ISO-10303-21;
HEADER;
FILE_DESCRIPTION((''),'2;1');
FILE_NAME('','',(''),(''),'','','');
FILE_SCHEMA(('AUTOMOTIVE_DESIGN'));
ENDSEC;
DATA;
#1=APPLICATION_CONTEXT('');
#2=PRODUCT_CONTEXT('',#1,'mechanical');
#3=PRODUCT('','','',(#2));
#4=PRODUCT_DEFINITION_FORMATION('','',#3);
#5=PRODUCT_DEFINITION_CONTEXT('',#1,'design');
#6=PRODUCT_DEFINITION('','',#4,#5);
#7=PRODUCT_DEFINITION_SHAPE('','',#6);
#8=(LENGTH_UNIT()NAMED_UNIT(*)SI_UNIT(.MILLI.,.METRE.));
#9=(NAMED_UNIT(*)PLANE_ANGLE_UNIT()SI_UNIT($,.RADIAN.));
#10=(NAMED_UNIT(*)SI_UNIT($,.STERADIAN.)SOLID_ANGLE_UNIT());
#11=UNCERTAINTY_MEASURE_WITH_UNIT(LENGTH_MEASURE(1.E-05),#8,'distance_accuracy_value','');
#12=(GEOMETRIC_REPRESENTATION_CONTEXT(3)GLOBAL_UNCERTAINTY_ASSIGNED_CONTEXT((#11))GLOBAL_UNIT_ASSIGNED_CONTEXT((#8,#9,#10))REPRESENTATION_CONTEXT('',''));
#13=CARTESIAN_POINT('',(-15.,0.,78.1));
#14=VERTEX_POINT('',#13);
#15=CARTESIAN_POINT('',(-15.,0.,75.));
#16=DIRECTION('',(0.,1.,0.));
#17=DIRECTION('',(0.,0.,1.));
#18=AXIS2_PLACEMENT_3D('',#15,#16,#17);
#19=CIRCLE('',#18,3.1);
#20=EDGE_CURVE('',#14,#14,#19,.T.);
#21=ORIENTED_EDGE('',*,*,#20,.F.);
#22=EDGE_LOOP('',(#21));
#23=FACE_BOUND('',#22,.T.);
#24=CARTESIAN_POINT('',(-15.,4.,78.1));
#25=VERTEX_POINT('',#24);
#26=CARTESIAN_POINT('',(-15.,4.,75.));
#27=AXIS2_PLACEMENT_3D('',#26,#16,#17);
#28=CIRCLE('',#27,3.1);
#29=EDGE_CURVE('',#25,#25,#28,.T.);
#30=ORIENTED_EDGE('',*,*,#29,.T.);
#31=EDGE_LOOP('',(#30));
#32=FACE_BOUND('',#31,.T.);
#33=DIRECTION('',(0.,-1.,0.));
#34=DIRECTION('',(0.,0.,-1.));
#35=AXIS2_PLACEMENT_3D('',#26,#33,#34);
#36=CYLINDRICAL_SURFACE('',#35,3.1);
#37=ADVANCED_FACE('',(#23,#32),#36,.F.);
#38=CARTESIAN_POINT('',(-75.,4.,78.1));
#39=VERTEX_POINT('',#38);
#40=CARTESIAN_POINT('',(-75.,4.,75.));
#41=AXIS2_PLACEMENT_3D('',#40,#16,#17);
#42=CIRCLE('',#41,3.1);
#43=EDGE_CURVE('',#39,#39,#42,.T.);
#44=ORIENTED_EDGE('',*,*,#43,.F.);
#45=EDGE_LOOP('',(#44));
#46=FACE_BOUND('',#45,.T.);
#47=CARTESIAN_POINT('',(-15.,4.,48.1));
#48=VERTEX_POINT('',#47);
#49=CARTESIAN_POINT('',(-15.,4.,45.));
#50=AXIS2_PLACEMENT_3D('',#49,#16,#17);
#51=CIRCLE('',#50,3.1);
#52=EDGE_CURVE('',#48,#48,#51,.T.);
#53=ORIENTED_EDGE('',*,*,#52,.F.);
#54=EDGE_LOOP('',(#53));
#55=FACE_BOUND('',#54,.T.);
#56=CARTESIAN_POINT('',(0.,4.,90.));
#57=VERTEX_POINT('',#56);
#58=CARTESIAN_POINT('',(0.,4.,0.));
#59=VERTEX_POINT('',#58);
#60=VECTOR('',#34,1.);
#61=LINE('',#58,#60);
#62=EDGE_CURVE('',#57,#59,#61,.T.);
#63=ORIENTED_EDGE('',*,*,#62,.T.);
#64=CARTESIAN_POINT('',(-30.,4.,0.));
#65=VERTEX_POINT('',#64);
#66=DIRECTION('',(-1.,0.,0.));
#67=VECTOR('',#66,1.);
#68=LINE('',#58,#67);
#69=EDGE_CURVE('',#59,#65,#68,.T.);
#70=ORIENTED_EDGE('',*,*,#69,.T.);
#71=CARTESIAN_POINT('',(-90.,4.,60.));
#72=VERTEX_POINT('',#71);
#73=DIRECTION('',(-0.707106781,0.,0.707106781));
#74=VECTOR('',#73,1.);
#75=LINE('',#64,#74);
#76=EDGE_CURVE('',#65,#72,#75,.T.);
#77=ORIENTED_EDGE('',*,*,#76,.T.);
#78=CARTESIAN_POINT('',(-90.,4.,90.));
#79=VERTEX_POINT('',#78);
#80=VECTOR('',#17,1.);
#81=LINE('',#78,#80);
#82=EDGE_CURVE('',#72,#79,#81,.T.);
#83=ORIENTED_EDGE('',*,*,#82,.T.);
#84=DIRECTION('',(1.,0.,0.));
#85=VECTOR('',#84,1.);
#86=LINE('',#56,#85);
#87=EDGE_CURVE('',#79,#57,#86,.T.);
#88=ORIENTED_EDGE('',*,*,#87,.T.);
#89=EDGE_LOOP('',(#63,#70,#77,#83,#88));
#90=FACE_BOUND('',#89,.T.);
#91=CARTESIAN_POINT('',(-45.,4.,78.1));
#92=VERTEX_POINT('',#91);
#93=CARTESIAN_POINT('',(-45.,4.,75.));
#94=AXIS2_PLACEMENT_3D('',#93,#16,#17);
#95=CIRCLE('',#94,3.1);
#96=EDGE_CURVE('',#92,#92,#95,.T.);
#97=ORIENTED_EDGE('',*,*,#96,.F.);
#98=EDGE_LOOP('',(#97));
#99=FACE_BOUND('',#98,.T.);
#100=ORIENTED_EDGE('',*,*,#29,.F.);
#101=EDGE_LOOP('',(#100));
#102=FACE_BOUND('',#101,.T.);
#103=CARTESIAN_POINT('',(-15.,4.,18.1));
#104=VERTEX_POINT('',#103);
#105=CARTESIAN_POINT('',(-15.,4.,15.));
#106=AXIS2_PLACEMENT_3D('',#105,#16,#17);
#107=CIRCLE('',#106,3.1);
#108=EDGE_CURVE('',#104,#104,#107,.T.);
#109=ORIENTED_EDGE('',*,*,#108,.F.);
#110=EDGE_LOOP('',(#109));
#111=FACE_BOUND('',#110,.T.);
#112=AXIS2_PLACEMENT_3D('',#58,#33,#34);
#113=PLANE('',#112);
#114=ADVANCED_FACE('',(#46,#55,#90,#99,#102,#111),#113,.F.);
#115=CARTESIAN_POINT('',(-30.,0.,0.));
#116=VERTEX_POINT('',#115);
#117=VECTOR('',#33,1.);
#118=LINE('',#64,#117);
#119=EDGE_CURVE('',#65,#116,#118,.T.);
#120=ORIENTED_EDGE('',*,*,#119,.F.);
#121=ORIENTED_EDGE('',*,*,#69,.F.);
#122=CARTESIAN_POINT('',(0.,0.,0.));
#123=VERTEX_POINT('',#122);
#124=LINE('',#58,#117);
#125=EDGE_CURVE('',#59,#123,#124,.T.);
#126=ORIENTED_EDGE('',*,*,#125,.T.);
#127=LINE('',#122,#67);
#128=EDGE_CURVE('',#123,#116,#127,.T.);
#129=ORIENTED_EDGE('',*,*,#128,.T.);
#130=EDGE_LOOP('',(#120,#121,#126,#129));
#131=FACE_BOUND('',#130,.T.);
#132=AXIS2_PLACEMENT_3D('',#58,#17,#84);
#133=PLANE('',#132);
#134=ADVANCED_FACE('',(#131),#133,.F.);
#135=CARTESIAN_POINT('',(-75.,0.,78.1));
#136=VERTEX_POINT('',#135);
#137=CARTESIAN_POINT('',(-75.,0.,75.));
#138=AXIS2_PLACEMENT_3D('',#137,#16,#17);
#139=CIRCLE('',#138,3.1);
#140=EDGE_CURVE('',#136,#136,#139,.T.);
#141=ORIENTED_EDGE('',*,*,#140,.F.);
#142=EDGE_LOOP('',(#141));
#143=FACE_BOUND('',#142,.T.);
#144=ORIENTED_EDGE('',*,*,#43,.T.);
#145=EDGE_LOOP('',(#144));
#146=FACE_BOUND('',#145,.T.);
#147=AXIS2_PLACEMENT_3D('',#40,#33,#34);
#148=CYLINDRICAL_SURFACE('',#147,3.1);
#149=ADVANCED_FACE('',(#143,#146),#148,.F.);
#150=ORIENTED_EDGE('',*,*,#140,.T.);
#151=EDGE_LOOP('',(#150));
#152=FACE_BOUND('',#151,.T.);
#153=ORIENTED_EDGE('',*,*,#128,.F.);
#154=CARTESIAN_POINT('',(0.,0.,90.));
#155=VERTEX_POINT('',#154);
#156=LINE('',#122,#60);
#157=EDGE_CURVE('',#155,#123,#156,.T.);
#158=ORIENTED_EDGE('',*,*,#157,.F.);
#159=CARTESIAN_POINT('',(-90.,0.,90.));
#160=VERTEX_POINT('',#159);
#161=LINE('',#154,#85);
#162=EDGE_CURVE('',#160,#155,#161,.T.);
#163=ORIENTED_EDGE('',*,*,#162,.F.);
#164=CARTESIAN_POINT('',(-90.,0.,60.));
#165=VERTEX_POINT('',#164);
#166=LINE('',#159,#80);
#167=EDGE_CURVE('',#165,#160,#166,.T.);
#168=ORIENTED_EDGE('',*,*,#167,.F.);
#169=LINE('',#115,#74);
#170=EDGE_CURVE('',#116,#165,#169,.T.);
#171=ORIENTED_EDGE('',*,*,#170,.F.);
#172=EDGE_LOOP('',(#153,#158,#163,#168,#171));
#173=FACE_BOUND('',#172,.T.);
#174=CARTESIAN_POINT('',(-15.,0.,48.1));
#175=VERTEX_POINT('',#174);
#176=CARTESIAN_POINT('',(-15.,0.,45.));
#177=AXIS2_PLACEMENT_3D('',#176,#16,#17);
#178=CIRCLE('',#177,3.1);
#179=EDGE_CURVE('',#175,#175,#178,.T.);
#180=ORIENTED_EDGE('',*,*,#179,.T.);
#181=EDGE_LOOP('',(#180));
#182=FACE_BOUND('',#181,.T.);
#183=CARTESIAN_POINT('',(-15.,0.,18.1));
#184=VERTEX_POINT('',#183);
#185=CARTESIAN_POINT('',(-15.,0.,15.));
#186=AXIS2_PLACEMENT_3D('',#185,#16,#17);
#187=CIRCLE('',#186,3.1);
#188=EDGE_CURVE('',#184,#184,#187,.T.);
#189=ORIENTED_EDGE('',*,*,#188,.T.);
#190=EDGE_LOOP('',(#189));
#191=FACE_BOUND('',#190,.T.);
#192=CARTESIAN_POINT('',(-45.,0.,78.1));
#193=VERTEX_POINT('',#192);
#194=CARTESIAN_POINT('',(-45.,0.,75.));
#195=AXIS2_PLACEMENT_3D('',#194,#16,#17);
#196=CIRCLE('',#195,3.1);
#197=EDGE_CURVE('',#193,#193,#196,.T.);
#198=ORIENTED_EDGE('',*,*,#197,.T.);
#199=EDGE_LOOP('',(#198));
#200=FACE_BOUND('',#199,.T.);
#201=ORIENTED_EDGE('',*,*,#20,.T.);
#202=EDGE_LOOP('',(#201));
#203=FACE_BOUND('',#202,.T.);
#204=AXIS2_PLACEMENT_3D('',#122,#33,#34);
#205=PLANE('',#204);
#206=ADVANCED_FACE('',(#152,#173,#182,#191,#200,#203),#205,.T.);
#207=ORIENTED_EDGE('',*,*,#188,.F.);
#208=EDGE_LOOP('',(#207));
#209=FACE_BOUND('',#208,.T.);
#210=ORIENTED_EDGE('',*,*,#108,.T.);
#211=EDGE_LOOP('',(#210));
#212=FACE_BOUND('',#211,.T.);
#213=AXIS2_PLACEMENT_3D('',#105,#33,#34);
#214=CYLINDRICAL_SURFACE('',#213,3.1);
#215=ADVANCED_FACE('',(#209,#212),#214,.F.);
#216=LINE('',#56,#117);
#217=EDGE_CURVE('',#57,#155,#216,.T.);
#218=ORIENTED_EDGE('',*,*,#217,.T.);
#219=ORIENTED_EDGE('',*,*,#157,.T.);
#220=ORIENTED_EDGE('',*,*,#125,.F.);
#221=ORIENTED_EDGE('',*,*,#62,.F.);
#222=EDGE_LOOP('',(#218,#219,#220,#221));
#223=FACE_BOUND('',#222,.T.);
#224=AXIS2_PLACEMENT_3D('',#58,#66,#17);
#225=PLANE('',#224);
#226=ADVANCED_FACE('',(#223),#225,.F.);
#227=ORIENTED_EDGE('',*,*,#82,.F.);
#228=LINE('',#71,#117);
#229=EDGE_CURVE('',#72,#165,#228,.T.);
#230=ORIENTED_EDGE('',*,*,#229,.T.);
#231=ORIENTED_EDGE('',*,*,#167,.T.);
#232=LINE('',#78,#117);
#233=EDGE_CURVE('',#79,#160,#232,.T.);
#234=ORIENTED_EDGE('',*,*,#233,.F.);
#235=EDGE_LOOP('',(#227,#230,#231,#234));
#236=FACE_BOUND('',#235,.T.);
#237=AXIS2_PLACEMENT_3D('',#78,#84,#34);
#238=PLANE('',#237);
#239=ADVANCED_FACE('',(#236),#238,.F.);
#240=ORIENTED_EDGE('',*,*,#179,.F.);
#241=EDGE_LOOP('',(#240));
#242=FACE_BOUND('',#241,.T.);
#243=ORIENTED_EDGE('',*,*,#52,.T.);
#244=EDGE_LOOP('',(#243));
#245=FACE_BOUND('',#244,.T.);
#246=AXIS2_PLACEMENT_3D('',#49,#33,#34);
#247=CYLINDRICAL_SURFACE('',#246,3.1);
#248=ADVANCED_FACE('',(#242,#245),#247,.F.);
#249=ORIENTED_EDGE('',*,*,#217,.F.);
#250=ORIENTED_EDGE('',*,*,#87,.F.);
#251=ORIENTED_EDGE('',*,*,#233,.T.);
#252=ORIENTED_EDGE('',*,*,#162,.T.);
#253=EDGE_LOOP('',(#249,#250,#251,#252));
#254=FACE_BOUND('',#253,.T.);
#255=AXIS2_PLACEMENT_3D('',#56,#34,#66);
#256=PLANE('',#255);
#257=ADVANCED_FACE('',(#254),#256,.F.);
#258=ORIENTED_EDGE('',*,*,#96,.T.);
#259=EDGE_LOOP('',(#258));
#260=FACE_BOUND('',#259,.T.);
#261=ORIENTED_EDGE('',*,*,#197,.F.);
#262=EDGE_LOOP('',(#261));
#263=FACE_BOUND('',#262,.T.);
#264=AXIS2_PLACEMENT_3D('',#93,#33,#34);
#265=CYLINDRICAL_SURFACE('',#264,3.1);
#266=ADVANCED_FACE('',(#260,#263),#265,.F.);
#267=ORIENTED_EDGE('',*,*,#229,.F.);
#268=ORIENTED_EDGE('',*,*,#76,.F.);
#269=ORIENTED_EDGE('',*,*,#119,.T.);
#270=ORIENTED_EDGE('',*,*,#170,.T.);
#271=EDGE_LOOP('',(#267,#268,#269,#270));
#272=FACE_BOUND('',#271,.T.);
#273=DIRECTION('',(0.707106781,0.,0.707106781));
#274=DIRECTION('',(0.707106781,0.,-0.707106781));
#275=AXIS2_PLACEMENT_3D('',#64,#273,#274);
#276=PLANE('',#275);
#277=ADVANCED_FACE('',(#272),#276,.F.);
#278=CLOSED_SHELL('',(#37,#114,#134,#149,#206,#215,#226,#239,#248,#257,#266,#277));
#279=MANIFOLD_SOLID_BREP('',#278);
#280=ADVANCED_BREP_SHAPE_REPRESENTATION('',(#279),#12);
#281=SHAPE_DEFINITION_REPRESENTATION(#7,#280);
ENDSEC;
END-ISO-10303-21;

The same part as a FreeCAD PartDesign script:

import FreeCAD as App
import Part
import Sketcher
Q = App.Units.Quantity


def add_polygon(sketch, points):
    """Adds a closed chain of lines whose ends are joined by coincident constraints."""
    first, n = sketch.GeometryCount, len(points)
    for a, b in zip(points, points[1:] + points[:1]):
        sketch.addGeometry(Part.LineSegment(App.Vector(*a, 0), App.Vector(*b, 0)), False)
    for i in range(n):
        sketch.addConstraint(Sketcher.Constraint("Coincident", first + i, 2, first + (i + 1) % n, 1))

doc = App.newDocument("Part")
body = doc.addObject("PartDesign::Body", "Body")

sketch1 = body.newObject("Sketcher::SketchObject", "Sketch")
sketch1.AttachmentSupport = (doc.getObject("XZ_Plane"), [""])
sketch1.MapMode = "FlatFace"
add_polygon(sketch1, [(0, 90), (0, 0), (-30, 0), (-90, 60), (-90, 90)])
sketch1.addGeometry(Part.Circle(App.Vector(-15, 75, 0), App.Vector(0, 0, 1), 3.1), False)
sketch1.addGeometry(Part.Circle(App.Vector(-45, 75, 0), App.Vector(0, 0, 1), 3.1), False)
sketch1.addGeometry(Part.Circle(App.Vector(-75, 75, 0), App.Vector(0, 0, 1), 3.1), False)
sketch1.addGeometry(Part.Circle(App.Vector(-15, 45, 0), App.Vector(0, 0, 1), 3.1), False)
sketch1.addGeometry(Part.Circle(App.Vector(-15, 15, 0), App.Vector(0, 0, 1), 3.1), False)
sketch1.addConstraint([
    Sketcher.Constraint("Vertical", 0),
    Sketcher.Constraint("Horizontal", 1),
    Sketcher.Constraint("Vertical", 3),
    Sketcher.Constraint("Horizontal", 4),
    Sketcher.Constraint("Coincident", 0, 2, -1, 1),
    Sketcher.Constraint("Equal", 5, 6),
    Sketcher.Constraint("Equal", 6, 7),
    Sketcher.Constraint("Equal", 7, 8),
    Sketcher.Constraint("Equal", 8, 9),
    Sketcher.Constraint("Horizontal", 5, 3, 6, 3),
    Sketcher.Constraint("Horizontal", 6, 3, 7, 3),
    Sketcher.Constraint("Vertical", 5, 3, 8, 3),
    Sketcher.Constraint("Vertical", 8, 3, 9, 3),
    Sketcher.Constraint("Equal", 4, 0),
    Sketcher.Constraint("Equal", 1, 3),
    Sketcher.Constraint("Diameter", 5, Q("6.2 mm")),
    Sketcher.Constraint("DistanceX", 1, 2, 1, 1, Q("30 mm")),
    Sketcher.Constraint("DistanceX", 4, 1, 4, 2, Q("90 mm")),
    Sketcher.Constraint("DistanceX", 5, 3, -1, 1, Q("15 mm")),
    Sketcher.Constraint("DistanceY", -1, 1, 5, 3, Q("75 mm")),
    Sketcher.Constraint("DistanceX", 6, 3, -1, 1, Q("45 mm")),
    Sketcher.Constraint("DistanceX", 7, 3, -1, 1, Q("75 mm")),
    Sketcher.Constraint("DistanceY", -1, 1, 8, 3, Q("45 mm")),
    Sketcher.Constraint("DistanceY", -1, 1, 9, 3, Q("15 mm")),
])
pad1 = body.newObject("PartDesign::Pad", "Pad")
pad1.Profile = sketch1
pad1.Length = 4
pad1.Reversed = True

doc.recompute()
